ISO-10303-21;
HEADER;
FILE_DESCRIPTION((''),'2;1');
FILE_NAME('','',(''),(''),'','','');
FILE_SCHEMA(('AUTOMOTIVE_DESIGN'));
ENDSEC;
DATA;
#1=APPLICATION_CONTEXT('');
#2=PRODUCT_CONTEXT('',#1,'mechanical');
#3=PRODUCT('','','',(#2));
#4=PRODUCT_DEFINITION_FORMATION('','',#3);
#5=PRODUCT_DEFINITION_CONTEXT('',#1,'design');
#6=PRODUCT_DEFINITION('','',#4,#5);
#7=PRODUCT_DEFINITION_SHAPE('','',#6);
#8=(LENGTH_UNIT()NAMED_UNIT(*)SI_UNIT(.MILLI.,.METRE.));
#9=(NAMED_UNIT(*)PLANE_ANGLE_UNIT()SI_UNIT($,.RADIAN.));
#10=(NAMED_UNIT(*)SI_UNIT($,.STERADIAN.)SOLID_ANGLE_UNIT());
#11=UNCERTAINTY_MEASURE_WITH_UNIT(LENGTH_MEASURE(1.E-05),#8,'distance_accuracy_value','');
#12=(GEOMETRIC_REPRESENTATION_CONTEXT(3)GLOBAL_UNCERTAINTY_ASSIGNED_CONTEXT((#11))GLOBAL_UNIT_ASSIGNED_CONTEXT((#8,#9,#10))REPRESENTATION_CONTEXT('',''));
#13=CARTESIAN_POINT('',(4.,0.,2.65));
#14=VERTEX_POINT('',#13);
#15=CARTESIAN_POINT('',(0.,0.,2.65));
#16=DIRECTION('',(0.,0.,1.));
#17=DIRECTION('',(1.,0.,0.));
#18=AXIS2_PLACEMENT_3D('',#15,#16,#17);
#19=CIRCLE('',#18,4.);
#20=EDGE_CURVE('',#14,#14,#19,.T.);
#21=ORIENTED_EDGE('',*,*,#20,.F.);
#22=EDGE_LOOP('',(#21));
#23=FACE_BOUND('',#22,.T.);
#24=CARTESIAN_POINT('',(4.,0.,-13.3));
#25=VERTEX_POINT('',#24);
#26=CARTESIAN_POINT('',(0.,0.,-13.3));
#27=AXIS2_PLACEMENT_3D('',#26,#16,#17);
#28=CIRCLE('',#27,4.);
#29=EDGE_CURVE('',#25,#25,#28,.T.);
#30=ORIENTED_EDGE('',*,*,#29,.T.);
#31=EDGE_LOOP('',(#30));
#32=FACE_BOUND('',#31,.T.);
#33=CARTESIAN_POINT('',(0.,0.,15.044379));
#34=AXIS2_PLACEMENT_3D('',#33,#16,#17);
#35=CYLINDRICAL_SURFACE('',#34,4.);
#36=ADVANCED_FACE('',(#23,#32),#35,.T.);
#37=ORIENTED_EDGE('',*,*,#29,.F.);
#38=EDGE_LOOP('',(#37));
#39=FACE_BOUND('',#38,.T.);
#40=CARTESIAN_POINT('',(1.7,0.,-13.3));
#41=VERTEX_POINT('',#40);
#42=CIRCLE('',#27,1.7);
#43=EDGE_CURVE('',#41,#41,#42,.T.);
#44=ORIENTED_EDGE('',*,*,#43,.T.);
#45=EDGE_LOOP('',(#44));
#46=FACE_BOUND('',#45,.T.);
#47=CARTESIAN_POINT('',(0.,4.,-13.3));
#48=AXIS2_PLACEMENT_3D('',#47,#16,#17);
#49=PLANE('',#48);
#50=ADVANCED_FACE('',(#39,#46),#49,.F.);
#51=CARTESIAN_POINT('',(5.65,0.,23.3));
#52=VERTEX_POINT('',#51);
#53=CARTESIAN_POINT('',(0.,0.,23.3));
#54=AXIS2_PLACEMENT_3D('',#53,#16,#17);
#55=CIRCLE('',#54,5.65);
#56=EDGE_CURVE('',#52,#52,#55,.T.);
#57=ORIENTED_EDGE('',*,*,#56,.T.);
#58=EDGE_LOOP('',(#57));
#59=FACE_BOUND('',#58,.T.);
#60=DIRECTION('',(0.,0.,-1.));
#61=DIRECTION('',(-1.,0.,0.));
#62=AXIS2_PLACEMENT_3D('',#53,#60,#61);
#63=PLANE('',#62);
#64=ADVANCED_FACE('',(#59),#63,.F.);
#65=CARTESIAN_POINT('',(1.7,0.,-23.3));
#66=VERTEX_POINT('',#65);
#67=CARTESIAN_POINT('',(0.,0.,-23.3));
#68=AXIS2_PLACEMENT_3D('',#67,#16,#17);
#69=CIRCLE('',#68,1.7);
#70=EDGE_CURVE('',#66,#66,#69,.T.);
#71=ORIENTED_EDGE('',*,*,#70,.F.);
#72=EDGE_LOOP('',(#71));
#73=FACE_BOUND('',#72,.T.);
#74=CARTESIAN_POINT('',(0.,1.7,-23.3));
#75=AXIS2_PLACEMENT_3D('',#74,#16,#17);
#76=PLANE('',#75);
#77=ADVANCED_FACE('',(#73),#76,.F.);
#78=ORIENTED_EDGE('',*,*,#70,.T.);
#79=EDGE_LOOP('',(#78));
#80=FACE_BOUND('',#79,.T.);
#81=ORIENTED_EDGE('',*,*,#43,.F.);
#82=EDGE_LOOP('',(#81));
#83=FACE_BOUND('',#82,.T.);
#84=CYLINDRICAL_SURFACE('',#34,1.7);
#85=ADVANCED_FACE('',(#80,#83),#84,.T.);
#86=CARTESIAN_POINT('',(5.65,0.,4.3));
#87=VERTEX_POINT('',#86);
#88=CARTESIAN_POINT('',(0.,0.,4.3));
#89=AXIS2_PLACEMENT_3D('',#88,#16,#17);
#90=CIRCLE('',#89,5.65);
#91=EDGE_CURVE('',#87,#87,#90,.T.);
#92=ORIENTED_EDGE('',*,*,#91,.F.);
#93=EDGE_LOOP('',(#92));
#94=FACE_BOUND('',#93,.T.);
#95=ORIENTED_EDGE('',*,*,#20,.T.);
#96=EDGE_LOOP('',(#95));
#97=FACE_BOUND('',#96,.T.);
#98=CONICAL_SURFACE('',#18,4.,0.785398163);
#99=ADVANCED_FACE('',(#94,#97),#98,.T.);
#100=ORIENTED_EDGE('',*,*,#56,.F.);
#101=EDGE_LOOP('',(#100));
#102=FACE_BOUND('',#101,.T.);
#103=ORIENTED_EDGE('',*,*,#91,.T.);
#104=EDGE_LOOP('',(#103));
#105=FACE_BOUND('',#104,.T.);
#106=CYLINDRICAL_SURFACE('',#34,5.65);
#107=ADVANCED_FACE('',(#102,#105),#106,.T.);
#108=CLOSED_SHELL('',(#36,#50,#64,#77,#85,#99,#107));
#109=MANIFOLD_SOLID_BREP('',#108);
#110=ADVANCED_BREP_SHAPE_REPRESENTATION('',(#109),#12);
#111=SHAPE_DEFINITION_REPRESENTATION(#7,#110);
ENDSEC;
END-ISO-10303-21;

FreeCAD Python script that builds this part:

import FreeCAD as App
import Part
import Sketcher
from FreeCAD import Vector
Q = App.Units.Quantity


def add_polygon(sketch, points):
    """Adds a closed chain of lines whose ends are joined by coincident constraints."""
    first, n = sketch.GeometryCount, len(points)
    for a, b in zip(points, points[1:] + points[:1]):
        sketch.addGeometry(Part.LineSegment(App.Vector(*a, 0), App.Vector(*b, 0)), False)
    for i in range(n):
        sketch.addConstraint(Sketcher.Constraint("Coincident", first + i, 2, first + (i + 1) % n, 1))

doc = App.newDocument("Part")
body = doc.addObject("PartDesign::Body", "Body")

sketch1 = doc.addObject("Sketcher::SketchObject", "Sketch")
body.addObject(sketch1)
sketch1.AttachmentSupport = (doc.YZ_Plane, [""])
sketch1.MapMode = "FlatFace"
add_polygon(sketch1, [(5.7, 23.3), (0, 23.3), (0, -23.3), (1.7, -23.3), (1.7, -13.3), (4, -13.3), (4, 2.6), (5.7, 4.3)])
sketch1.addConstraint([
    Sketcher.Constraint("Horizontal", 0),
    Sketcher.Constraint("Vertical", 1),
    Sketcher.Constraint("Horizontal", 2),
    Sketcher.Constraint("Vertical", 3),
    Sketcher.Constraint("Horizontal", 4),
    Sketcher.Constraint("Vertical", 5),
    Sketcher.Constraint("Vertical", 7),
    Sketcher.Constraint("Symmetric", 0, 2, 1, 2, -1, 1),
    Sketcher.Constraint("DistanceY", 3, 1, 3, 2, Q("10 mm")),
    Sketcher.Constraint("DistanceY", 7, 1, 7, 2, Q("19 mm")),
    Sketcher.Constraint("Angle", 6, Q("45 deg")),
    Sketcher.Constraint("DistanceX", 2, 1, 2, 2, Q("1.7 mm")),
    Sketcher.Constraint("DistanceX", 4, 1, 4, 2, Q("2.3 mm")),
    Sketcher.Constraint("DistanceY", 1, 2, 1, 1, Q("46.6 mm")),
    Sketcher.Constraint("DistanceX", 0, 2, 0, 1, Q("5.65 mm")),
])
revolution = doc.addObject("PartDesign::Revolution", "Revolution")
body.addObject(revolution)
revolution.Profile = sketch1
revolution.ReferenceAxis = (sketch1, ["V_Axis"])
revolution.Angle = 360

doc.recompute()
